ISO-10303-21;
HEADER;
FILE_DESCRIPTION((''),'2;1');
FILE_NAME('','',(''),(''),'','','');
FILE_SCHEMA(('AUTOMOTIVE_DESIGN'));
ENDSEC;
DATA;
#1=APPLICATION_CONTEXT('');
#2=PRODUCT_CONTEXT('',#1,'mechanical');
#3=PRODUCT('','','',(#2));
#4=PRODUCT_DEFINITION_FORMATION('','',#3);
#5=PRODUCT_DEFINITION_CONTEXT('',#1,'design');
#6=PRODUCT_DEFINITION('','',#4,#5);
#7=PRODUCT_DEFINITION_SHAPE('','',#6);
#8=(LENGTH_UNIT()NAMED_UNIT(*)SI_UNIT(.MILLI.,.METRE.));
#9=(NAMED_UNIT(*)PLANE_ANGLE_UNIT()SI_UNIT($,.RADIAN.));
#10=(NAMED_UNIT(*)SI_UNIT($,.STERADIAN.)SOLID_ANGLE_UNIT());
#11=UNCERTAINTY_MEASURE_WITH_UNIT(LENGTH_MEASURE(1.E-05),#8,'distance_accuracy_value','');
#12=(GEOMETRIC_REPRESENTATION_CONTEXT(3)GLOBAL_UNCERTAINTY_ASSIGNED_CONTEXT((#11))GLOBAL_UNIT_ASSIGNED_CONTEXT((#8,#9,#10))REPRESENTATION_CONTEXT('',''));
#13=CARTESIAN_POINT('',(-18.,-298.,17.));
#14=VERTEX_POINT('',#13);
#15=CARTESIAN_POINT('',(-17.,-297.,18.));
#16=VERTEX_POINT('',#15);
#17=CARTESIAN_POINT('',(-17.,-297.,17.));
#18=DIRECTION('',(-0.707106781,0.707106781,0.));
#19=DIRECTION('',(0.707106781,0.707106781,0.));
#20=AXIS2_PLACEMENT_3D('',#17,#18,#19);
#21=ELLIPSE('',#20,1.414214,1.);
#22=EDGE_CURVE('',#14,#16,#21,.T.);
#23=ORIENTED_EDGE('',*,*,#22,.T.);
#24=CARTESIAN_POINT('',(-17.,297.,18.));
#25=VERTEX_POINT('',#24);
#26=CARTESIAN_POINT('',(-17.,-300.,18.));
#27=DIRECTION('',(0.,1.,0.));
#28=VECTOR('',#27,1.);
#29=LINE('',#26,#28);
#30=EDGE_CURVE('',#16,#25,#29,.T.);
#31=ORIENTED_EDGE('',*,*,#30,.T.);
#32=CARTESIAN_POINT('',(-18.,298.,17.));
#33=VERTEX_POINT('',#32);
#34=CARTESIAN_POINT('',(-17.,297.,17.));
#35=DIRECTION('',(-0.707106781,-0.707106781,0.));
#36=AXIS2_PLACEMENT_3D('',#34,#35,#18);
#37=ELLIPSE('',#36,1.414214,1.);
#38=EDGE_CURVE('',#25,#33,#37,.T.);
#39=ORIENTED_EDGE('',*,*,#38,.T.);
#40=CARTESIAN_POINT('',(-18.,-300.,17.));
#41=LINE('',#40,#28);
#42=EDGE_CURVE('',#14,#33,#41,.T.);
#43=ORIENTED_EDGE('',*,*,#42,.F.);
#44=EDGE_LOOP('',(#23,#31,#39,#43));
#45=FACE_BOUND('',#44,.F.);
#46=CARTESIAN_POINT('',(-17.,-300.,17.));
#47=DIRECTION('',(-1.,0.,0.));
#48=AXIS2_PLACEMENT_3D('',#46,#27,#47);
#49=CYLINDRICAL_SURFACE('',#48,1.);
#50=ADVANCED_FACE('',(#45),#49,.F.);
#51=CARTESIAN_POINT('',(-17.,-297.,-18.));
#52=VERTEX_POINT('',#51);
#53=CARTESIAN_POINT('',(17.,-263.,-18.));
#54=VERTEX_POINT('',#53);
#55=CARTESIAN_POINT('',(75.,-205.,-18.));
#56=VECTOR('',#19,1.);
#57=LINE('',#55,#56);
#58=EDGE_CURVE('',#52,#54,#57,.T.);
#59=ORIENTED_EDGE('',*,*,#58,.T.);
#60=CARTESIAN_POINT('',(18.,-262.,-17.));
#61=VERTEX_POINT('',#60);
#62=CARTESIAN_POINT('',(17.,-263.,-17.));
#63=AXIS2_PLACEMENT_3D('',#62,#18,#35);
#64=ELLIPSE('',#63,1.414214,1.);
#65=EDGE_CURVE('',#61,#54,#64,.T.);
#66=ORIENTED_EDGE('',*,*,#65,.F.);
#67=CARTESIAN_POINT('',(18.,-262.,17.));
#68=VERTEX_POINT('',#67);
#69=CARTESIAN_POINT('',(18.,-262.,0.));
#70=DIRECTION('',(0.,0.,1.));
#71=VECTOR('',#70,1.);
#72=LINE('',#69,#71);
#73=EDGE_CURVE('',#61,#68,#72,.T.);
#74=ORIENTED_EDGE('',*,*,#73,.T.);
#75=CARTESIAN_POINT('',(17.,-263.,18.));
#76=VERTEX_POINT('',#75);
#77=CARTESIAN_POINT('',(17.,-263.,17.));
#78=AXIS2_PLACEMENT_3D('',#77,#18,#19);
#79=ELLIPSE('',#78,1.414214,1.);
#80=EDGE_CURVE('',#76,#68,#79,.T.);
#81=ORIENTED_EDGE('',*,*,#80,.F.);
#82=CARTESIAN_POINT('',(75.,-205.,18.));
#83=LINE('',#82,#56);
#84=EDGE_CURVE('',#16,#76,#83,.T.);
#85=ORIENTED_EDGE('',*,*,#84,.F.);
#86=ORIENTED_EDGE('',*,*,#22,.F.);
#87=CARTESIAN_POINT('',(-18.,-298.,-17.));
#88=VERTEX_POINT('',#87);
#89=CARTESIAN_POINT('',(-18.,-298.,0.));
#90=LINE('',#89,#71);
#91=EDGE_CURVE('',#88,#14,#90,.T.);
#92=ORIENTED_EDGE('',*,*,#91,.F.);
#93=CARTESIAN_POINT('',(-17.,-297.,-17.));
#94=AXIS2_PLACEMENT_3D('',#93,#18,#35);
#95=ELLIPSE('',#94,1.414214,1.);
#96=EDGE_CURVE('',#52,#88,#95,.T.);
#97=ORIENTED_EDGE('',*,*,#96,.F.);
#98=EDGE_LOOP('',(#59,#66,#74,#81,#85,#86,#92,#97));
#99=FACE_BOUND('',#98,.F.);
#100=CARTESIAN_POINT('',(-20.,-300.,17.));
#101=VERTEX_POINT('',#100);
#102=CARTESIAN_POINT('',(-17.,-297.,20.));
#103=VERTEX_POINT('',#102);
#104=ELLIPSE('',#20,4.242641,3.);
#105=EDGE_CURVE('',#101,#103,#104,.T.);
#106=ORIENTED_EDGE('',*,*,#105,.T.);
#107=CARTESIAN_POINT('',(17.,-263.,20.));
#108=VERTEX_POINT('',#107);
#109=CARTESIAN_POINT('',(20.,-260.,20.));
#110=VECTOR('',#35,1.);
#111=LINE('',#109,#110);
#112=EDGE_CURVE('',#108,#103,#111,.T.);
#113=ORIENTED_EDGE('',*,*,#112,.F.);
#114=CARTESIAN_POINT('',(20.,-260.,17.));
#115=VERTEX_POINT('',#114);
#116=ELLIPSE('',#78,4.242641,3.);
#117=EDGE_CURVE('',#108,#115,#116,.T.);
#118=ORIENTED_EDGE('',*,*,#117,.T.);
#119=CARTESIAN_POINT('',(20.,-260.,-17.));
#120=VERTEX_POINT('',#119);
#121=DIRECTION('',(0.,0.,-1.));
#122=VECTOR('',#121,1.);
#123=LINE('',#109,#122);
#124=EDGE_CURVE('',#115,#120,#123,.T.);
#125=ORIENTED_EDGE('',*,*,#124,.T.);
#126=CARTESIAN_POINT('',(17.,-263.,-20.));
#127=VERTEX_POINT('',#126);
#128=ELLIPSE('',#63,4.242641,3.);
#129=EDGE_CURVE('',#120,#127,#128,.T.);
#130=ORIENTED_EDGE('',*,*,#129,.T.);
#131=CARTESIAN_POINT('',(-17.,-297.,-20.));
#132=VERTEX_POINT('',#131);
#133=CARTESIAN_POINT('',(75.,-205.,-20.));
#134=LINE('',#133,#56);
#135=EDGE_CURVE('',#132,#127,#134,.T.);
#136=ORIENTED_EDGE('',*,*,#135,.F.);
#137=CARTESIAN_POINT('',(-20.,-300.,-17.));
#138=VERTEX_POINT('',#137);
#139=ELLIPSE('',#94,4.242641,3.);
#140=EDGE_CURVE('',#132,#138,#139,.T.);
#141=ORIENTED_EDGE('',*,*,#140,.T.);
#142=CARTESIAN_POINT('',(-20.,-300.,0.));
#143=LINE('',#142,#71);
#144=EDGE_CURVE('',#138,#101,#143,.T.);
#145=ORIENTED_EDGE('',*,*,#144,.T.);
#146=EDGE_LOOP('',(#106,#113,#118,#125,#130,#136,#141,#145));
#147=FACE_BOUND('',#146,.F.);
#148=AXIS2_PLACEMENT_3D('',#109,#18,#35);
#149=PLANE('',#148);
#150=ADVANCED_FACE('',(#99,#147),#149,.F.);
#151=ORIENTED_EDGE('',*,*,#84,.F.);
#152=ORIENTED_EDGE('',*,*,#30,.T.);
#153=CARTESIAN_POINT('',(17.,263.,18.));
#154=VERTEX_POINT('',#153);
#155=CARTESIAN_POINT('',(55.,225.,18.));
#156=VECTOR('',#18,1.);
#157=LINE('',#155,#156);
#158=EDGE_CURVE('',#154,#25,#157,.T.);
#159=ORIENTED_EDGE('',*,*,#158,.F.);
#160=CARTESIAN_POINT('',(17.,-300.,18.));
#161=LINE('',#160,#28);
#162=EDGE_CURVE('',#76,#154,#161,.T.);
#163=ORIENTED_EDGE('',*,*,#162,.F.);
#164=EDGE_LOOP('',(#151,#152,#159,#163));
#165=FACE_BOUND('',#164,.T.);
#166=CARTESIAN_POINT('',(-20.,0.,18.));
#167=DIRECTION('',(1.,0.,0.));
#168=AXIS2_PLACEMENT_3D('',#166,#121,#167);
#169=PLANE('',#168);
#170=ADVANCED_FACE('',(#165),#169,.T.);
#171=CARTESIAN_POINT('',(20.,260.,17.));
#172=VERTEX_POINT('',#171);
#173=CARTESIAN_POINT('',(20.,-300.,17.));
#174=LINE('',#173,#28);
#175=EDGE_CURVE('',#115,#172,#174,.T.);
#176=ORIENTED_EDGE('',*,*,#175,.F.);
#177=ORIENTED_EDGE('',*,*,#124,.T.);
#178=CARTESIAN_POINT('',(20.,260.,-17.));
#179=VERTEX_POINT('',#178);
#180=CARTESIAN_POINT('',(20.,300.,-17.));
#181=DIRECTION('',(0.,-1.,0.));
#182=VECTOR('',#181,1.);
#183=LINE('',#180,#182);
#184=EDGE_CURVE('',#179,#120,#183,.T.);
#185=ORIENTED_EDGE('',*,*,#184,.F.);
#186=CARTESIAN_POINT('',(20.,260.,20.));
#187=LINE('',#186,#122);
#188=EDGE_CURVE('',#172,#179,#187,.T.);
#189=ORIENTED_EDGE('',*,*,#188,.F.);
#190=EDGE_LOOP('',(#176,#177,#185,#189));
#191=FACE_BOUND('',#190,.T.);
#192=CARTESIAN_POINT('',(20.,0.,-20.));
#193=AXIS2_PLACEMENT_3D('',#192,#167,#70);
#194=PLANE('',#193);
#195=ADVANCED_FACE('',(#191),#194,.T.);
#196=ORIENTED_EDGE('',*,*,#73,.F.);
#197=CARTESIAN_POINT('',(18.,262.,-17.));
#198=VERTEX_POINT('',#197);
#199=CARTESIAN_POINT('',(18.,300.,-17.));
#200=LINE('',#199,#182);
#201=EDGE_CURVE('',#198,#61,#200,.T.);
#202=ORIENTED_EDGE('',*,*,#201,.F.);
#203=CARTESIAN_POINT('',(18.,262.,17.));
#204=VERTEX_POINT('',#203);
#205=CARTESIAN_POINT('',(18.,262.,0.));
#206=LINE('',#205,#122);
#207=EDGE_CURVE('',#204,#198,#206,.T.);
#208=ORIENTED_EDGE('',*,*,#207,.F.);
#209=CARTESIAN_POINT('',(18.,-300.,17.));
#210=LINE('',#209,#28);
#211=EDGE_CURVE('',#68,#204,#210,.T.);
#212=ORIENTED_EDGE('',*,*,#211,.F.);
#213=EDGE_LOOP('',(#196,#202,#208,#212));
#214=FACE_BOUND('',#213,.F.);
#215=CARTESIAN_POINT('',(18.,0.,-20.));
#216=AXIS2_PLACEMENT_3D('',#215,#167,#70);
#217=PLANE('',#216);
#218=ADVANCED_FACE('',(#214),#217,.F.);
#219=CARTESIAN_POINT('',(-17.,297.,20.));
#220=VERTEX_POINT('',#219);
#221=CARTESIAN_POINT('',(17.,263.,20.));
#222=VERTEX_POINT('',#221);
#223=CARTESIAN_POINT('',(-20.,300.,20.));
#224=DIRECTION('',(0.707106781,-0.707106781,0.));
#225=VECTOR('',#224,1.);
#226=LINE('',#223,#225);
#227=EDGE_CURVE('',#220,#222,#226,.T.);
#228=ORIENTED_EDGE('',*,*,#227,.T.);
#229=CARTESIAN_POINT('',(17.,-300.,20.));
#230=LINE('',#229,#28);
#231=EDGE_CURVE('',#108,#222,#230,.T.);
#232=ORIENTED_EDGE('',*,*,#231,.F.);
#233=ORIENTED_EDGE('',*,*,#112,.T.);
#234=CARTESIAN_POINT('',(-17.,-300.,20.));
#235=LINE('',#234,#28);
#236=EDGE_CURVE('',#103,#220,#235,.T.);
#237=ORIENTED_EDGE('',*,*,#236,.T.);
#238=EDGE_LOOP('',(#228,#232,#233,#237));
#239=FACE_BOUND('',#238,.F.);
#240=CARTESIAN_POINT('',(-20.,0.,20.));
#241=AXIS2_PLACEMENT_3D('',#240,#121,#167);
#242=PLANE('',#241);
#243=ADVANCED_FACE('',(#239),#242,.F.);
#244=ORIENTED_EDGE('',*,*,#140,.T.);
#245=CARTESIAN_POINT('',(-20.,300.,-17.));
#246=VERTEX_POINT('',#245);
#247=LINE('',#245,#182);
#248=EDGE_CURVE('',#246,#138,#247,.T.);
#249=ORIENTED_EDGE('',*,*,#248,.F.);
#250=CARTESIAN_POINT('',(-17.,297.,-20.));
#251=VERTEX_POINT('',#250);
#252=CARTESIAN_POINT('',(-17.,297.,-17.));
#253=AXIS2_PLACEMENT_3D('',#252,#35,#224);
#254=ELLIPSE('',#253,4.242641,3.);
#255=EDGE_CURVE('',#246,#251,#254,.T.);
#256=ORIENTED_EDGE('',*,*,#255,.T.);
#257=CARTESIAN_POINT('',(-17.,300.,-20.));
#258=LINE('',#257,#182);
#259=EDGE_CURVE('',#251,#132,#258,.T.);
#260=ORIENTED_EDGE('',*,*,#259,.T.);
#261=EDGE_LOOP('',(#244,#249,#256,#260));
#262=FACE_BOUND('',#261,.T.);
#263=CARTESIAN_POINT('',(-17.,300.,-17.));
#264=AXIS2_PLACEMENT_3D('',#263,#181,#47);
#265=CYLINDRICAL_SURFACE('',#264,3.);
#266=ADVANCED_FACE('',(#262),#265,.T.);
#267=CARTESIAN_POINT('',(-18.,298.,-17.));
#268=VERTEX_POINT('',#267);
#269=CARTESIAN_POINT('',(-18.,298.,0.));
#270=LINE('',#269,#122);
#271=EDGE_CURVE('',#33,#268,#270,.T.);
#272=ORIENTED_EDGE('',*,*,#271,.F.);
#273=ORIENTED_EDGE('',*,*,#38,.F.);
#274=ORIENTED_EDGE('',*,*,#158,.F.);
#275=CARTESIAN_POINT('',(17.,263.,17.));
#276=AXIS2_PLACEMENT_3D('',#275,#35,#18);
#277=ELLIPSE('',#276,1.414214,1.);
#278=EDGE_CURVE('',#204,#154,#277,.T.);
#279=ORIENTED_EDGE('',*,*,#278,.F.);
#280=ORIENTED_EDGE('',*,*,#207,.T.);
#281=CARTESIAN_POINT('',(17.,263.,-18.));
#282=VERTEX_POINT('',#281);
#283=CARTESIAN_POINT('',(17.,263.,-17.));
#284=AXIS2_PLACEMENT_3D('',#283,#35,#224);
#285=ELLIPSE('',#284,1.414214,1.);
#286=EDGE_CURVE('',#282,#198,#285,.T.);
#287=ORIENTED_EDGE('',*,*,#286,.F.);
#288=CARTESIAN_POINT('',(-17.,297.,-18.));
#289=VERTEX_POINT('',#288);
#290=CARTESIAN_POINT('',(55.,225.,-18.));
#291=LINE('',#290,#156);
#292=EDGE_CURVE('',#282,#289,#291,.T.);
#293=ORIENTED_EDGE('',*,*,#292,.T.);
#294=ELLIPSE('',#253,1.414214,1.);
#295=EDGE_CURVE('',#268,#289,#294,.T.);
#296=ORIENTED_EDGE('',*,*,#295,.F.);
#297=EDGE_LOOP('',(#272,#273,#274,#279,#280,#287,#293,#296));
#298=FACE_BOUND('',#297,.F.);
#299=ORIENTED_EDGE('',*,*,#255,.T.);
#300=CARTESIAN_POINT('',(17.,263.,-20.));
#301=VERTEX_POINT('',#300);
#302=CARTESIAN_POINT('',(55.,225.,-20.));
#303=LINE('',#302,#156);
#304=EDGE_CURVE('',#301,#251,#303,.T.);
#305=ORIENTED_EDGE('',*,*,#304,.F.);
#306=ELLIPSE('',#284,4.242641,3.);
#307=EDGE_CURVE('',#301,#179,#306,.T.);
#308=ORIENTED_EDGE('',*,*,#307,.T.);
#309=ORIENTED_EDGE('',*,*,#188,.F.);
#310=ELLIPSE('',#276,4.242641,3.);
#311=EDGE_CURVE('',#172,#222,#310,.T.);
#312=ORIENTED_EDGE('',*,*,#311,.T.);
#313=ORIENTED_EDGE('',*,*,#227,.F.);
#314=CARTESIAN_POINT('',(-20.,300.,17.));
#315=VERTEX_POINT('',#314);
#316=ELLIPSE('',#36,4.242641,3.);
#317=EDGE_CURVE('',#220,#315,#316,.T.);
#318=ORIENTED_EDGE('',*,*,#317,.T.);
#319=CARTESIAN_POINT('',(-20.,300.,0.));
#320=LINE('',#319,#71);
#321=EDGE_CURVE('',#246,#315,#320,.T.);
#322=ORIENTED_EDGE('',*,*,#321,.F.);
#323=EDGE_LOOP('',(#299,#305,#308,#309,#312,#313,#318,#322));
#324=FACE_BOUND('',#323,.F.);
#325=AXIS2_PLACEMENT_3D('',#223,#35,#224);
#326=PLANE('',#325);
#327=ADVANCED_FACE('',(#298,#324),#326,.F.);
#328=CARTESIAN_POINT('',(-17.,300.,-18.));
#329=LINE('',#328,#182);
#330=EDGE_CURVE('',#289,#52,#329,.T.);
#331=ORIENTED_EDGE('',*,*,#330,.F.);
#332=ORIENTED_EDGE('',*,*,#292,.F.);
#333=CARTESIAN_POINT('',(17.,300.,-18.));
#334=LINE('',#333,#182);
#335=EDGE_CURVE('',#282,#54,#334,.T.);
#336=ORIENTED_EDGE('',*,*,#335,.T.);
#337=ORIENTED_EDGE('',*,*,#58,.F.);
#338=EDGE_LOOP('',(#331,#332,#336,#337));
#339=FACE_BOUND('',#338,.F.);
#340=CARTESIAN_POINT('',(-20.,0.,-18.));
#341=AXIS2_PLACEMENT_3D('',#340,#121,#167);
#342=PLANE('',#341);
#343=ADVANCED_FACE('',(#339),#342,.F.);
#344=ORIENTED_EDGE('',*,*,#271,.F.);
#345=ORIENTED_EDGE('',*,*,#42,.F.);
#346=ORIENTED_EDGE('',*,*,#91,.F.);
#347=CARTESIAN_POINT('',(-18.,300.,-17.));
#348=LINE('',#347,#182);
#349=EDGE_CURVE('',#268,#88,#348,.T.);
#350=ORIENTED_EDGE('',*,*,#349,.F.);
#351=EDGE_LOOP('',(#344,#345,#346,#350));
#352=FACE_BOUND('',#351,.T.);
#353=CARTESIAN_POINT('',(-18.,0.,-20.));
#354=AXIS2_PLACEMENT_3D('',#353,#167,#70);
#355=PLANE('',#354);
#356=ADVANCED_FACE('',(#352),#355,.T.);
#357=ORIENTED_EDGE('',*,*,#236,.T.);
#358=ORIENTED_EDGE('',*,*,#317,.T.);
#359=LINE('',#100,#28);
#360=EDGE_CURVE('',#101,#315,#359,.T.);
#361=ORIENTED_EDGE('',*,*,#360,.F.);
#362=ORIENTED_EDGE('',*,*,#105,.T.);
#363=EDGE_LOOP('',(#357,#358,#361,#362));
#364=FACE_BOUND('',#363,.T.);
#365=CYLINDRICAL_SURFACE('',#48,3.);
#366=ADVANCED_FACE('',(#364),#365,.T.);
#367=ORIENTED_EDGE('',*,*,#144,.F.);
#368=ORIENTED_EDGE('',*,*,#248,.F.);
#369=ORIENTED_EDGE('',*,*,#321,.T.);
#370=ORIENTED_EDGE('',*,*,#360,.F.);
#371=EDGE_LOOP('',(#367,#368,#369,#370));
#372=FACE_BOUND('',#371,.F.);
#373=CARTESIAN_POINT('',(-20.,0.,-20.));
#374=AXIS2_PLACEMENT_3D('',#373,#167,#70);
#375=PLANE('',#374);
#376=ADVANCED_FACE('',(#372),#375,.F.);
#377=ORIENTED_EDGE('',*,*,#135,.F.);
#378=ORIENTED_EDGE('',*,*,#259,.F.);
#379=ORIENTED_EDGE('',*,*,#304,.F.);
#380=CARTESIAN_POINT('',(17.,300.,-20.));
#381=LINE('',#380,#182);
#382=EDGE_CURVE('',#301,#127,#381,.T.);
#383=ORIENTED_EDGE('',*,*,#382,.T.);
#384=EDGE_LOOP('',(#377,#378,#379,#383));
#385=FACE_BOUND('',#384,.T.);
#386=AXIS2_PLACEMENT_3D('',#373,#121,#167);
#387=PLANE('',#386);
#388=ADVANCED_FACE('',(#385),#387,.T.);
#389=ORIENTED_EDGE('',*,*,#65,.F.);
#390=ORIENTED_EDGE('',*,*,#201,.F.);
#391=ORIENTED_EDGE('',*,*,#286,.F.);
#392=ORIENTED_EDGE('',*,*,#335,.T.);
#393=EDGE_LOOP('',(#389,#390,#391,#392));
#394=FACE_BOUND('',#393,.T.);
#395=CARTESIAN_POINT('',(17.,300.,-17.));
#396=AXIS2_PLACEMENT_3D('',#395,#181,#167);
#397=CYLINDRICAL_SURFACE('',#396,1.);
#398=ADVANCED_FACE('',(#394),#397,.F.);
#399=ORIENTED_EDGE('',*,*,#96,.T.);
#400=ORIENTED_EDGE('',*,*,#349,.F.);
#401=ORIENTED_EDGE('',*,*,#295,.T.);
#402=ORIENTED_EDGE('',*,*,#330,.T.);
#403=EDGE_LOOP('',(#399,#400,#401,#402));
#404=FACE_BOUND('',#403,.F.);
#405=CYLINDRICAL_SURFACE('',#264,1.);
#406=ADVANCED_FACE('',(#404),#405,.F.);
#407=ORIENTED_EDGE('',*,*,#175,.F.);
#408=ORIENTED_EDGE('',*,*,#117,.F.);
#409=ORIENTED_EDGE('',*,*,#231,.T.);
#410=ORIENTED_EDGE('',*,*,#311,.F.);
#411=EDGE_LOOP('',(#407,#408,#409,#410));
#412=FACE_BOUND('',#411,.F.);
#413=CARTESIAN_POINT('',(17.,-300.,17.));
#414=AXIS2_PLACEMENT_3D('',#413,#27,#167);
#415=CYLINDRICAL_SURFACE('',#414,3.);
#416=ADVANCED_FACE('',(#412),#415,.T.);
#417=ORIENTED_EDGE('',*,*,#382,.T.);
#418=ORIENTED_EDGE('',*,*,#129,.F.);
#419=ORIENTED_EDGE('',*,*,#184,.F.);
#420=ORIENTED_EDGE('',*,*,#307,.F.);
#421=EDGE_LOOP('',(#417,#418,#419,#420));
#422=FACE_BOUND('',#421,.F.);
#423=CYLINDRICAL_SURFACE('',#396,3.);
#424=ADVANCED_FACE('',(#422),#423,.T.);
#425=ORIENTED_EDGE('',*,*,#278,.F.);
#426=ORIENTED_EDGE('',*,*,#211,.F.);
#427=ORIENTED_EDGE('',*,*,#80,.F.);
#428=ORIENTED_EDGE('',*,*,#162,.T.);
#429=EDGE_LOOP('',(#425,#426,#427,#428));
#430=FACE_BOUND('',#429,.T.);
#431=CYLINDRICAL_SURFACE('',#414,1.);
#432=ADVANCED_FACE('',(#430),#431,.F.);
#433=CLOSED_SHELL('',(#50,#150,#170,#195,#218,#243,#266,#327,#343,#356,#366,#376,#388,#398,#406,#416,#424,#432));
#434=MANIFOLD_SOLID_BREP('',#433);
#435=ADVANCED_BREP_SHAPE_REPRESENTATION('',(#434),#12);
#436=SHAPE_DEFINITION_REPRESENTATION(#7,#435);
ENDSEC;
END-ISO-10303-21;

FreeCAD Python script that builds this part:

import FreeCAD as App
import Part
import Sketcher

V = App.Vector


def edges_at(feature, points):
    """Names of the edges that pass closest to the given points."""
    edges = feature.Shape.Edges
    near = lambda p: min(range(len(edges)), key=lambda i: edges[i].distToShape(Part.Vertex(*p))[0])
    return sorted({f"Edge{near(p) + 1}" for p in points})


def faces_at(feature, points):
    """Names of the faces that lie closest to the given points."""
    faces = feature.Shape.Faces
    near = lambda p: min(range(len(faces)), key=lambda i: faces[i].distToShape(Part.Vertex(*p))[0])
    return sorted({f"Face{near(p) + 1}" for p in points})

doc = App.newDocument("Part")
body = doc.addObject("PartDesign::Body", "Body")

# Sketch on XZ plane
sketch1 = body.newObject("Sketcher::SketchObject", "Sketch")
sketch1.AttachmentSupport = (doc.getObject("XZ_Plane"), [""])
sketch1.MapMode = "FlatFace"
sketch1.addGeometry([
    Part.LineSegment(V(-20, 20, 0), V(-20, -20, 0)),
    Part.LineSegment(V(-20, -20, 0), V(20, -20, 0)),
    Part.LineSegment(V(20, -20, 0), V(20, 20, 0)),
    Part.LineSegment(V(20, 20, 0), V(-20, 20, 0)),
], False)
sketch1.addConstraint([
    Sketcher.Constraint("Coincident", 0, 2, 1, 1),
    Sketcher.Constraint("Coincident", 1, 2, 2, 1),
    Sketcher.Constraint("Coincident", 2, 2, 3, 1),
    Sketcher.Constraint("Coincident", 3, 2, 0, 1),
    Sketcher.Constraint("Vertical", 0),
    Sketcher.Constraint("Horizontal", 1),
    Sketcher.Constraint("Vertical", 2),
    Sketcher.Constraint("Horizontal", 3),
    Sketcher.Constraint("Symmetric", 0, 2, 2, 2, -1, 1),
    Sketcher.Constraint("Equal", 3, 0),
    Sketcher.Constraint("DistanceX", 1, 1, 1, 2, 40.0),
])
pad1 = body.newObject("PartDesign::Pad", "Pad")
pad1.Profile = sketch1
pad1.Length = 600
pad1.Midplane = True
doc.recompute()

fillet = body.newObject("PartDesign::Fillet", "Fillet")
fillet.Base = (pad1, edges_at(pad1, [
    (20, 0, 20),
    (-20, 0, 20),
    (20, 0, -20),
    (-20, 0, -20),
]))
fillet.Radius = 3
doc.recompute()

thickness = body.newObject("PartDesign::Thickness", "Thickness")
thickness.Base = (fillet, faces_at(fillet, [(0, -300, 0), (0, 300, 0)]))
thickness.Value = 2
thickness.Reversed = True
thickness.Join = "Arc"

# Sketch on XY plane
sketch2 = body.newObject("Sketcher::SketchObject", "Sketch001")
sketch2.AttachmentSupport = (doc.getObject("XY_Plane"), [""])
sketch2.MapMode = "FlatFace"
sketch2.AttachmentOffset = App.Placement(V(0, 0, 20), App.Rotation())
sketch2.addGeometry([
    Part.LineSegment(V(20, -300, 0), V(20, -260, 0)),  # 0
    Part.LineSegment(V(20, -260, 0), V(-20, -300, 0)),  # 1
    Part.LineSegment(V(-20, -300, 0), V(20, -300, 0)),  # 2
    Part.LineSegment(V(20, 300, 0), V(-20, 300, 0)),  # 3
    Part.LineSegment(V(-20, 300, 0), V(20, 260, 0)),  # 4
    Part.LineSegment(V(20, 260, 0), V(20, 300, 0)),  # 5
], False)
sketch2.addConstraint([
    Sketcher.Constraint("Coincident", 0, 2, 1, 1),
    Sketcher.Constraint("Coincident", 1, 2, 2, 1),
    Sketcher.Constraint("Coincident", 2, 2, 0, 1),
    Sketcher.Constraint("Coincident", 3, 2, 4, 1),
    Sketcher.Constraint("Coincident", 4, 2, 5, 1),
    Sketcher.Constraint("Coincident", 5, 2, 3, 1),
    Sketcher.Constraint("Vertical", 0),
    Sketcher.Constraint("Horizontal", 2),
    Sketcher.Constraint("Horizontal", 3),
    Sketcher.Constraint("Vertical", 5),
    Sketcher.Constraint("Symmetric", 2, 2, 3, 2, -1, 1),
    Sketcher.Constraint("Symmetric", 0, 2, 4, 2, -1),
    Sketcher.Constraint("Perpendicular", 1, 4),
    Sketcher.Constraint("Vertical", 1, 2, 3, 2),
    Sketcher.Constraint("DistanceX", 2, 1, 2, 2, 40.0),
    Sketcher.Constraint("DistanceY", 0, 2, -1, 1, 260.0),
])
pocket1 = body.newObject("PartDesign::Pocket", "Pocket")
pocket1.Profile = sketch2
pocket1.Type = "ThroughAll"

doc.recompute()
